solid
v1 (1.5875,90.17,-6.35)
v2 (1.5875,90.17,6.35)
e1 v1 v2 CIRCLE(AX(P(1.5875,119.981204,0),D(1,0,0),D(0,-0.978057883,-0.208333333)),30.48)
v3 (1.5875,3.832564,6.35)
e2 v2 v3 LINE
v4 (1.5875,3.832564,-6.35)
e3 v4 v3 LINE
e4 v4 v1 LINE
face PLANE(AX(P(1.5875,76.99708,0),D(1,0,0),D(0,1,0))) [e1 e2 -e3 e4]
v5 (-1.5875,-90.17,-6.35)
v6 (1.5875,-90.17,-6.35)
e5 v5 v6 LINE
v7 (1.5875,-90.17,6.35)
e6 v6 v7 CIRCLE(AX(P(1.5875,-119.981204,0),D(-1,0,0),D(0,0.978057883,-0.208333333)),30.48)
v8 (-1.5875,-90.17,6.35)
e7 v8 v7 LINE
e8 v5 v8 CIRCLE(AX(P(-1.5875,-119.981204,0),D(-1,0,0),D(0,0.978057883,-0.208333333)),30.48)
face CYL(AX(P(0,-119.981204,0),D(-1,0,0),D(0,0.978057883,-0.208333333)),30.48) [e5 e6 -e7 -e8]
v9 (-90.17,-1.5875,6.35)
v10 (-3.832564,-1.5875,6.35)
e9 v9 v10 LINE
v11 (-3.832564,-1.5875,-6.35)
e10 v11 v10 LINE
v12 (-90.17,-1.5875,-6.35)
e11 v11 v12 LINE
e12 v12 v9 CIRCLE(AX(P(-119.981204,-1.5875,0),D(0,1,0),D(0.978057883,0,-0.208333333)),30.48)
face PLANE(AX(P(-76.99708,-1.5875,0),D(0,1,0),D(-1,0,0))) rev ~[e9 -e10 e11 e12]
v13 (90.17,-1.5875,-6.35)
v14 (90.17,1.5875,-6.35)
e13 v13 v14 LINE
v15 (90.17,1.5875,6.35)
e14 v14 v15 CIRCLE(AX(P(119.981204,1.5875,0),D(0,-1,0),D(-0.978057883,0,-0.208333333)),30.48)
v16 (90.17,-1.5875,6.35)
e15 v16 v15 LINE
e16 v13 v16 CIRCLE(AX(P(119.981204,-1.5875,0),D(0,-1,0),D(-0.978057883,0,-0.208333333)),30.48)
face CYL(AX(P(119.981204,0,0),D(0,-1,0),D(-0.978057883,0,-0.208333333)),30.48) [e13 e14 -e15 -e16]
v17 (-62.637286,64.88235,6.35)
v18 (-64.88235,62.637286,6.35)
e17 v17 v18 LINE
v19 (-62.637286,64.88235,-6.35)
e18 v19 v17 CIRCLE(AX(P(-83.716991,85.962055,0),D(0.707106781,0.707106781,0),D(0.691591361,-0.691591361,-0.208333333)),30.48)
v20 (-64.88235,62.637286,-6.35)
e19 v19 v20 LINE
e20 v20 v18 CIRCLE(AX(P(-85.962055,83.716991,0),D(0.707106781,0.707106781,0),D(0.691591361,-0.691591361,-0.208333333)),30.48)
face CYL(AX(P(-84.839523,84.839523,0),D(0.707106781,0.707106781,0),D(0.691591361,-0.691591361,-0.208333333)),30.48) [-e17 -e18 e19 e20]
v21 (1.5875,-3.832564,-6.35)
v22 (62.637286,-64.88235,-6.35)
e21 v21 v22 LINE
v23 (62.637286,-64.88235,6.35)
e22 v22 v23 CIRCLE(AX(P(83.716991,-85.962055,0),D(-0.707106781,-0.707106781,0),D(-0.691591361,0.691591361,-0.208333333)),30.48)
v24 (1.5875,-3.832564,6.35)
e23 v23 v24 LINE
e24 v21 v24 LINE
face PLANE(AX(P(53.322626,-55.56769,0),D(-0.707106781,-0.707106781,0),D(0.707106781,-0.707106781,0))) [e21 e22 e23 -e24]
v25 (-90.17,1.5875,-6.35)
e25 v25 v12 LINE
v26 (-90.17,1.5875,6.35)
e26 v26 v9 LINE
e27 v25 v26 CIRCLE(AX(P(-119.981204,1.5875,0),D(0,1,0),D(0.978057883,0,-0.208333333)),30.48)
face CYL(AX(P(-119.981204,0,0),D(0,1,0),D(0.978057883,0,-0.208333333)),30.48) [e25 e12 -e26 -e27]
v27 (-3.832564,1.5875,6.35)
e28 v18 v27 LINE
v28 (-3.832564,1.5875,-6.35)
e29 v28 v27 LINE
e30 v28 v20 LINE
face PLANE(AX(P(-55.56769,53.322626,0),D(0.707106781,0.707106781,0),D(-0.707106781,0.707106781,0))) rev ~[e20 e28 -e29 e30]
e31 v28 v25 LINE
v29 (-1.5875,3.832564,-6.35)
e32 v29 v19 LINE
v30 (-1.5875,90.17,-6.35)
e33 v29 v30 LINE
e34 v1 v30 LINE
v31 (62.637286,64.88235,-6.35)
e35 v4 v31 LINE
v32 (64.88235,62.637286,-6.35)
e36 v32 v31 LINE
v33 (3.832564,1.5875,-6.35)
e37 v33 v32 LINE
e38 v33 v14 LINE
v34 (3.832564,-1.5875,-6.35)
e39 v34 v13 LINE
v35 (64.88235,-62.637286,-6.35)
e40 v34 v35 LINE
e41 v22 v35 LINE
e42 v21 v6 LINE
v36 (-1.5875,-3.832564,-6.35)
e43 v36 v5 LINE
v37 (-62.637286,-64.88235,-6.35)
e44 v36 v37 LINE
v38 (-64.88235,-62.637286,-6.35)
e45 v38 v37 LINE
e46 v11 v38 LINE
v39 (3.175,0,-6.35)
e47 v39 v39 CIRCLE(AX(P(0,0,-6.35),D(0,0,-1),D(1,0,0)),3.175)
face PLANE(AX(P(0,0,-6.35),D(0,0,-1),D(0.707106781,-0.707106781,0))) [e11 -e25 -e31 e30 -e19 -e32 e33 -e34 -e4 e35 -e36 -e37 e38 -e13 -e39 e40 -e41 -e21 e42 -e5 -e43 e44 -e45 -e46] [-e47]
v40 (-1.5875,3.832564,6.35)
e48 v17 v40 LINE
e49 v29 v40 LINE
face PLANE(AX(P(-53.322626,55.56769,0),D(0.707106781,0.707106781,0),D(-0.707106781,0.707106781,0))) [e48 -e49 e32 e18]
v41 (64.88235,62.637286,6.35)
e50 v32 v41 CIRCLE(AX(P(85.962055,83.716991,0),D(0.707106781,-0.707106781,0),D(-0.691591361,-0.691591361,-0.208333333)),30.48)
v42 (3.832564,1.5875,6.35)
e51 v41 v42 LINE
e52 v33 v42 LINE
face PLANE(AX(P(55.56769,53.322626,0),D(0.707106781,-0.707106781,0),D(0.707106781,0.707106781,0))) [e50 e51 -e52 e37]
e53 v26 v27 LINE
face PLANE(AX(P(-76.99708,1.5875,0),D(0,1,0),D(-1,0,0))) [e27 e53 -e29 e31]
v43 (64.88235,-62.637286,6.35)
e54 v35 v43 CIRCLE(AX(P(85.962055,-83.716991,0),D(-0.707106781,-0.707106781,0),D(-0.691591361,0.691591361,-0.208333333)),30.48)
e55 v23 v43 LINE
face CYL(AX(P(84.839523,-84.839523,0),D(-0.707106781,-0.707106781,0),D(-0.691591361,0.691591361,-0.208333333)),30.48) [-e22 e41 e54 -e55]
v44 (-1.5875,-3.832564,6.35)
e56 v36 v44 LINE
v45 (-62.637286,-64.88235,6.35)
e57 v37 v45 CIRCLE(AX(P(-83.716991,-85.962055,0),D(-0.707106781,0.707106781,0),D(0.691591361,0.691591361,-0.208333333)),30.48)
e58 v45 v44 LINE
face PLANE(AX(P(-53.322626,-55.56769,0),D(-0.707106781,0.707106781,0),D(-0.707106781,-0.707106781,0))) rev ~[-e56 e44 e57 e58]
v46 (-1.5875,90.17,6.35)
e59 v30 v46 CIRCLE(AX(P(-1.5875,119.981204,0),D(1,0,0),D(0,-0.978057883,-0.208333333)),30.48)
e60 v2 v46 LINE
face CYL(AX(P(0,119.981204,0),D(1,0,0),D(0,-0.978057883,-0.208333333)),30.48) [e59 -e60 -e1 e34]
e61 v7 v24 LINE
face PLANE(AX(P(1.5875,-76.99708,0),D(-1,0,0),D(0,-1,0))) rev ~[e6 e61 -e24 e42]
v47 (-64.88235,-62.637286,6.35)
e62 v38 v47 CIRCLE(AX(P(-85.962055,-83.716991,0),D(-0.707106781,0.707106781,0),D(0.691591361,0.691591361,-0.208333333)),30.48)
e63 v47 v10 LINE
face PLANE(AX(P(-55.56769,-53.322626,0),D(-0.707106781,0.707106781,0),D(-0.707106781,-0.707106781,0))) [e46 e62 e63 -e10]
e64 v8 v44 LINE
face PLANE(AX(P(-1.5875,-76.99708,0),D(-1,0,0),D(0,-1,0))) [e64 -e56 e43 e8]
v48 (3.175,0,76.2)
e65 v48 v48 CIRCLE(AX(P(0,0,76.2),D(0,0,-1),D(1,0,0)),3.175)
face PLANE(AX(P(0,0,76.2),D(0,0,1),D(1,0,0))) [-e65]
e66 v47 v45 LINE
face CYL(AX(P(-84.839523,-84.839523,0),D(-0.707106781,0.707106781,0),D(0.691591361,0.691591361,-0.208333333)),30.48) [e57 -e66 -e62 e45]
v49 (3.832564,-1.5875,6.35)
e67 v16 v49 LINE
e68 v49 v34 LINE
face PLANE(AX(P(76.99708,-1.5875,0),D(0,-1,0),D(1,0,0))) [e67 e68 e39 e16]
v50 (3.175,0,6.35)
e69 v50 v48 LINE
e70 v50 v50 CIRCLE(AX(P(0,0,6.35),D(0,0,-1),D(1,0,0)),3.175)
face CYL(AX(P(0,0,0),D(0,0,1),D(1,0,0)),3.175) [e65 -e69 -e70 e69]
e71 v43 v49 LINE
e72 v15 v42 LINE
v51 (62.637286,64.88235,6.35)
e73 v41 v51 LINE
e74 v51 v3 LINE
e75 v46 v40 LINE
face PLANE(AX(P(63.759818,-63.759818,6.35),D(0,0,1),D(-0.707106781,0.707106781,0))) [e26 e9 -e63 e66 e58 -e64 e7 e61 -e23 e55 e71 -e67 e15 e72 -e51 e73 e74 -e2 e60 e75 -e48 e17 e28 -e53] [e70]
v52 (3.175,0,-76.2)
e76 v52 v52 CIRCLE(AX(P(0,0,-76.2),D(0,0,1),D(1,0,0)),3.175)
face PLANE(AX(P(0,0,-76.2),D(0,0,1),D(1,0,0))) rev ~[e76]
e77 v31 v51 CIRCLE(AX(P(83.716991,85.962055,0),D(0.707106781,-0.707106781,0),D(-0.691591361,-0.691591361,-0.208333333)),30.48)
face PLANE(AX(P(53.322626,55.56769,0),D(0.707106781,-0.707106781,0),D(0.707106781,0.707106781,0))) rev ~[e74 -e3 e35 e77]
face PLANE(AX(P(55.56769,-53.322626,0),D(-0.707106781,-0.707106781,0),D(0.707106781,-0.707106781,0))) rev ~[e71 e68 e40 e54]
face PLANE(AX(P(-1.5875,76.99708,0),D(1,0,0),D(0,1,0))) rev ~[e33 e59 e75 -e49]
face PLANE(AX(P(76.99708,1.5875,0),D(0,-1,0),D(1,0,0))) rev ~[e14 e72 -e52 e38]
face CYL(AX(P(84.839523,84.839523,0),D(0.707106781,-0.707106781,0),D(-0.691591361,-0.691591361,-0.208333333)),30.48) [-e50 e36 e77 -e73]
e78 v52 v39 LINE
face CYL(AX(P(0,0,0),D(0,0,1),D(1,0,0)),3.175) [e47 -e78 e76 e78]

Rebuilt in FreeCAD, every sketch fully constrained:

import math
import FreeCAD as App
import Part
import Sketcher
Q = App.Units.Quantity

doc = App.newDocument("Part")
body = doc.addObject("PartDesign::Body", "Body")

# Sketch on XZ plane
sketch1 = body.newObject("Sketcher::SketchObject", "Sketch")
sketch1.AttachmentSupport = (doc.getObject("XZ_Plane"), [""])
sketch1.MapMode = "FlatFace"
sketch1.addGeometry([
    Part.LineSegment(App.Vector(90.17, 6.35, 0), App.Vector(0, 6.35, 0)),
    Part.LineSegment(App.Vector(0, 6.35, 0), App.Vector(0, -6.35, 0)),
    Part.LineSegment(App.Vector(0, -6.35, 0), App.Vector(90.17, -6.35, 0)),
    Part.ArcOfCircle(Part.Circle(App.Vector(119.981204, 0, 0), App.Vector(0, 0, 1), 30.48), math.radians(-167.975301), math.radians(167.975301)),
], False)
sketch1.addConstraint([
    Sketcher.Constraint("Coincident", 0, 2, 1, 1),
    Sketcher.Constraint("Coincident", 1, 2, 2, 1),
    Sketcher.Constraint("Coincident", 2, 2, 3, 1),
    Sketcher.Constraint("Coincident", 3, 2, 0, 1),
    Sketcher.Constraint("Horizontal", 0),
    Sketcher.Constraint("Vertical", 1),
    Sketcher.Constraint("Horizontal", 2),
    Sketcher.Constraint("Symmetric", 0, 2, 1, 2, -1, 1),
    Sketcher.Constraint("PointOnObject", 3, 3, -1),
    Sketcher.Constraint("Radius", 3, Q("1.2 in")),
    Sketcher.Constraint("DistanceY", 1, 2, 1, 1, Q("0.5 in")),
    Sketcher.Constraint("DistanceX", 0, 2, 0, 1, Q("3.55 in")),
])
pad1 = body.newObject("PartDesign::Pad", "Pad")
pad1.Profile = sketch1
pad1.Length = Q("0.125 in")
pad1.Midplane = True

# Sketch on XY plane
sketch2 = body.newObject("Sketcher::SketchObject", "Sketch001")
sketch2.AttachmentSupport = (doc.getObject("XY_Plane"), [""])
sketch2.MapMode = "FlatFace"
sketch2.addGeometry(Part.Circle(App.Vector(0, 0, 0), App.Vector(0, 0, 1), 3.175), False)
sketch2.addConstraint([
    Sketcher.Constraint("Coincident", 0, 3, -1, 1),
    Sketcher.Constraint("Diameter", 0, Q("0.25 in")),
])
pad2 = body.newObject("PartDesign::Pad", "Pad001")
pad2.Profile = sketch2
pad2.Length = Q("6 in")
pad2.Midplane = True
body2 = doc.addObject("PartDesign::Body", "Body001")
doc.recompute()

body2.BaseFeature = body
doc.recompute()

body3 = doc.addObject("PartDesign::Body", "Body002")
body3.BaseFeature = body
body3.Placement = App.Placement(App.Vector(0, 0, 0), App.Rotation(App.Vector(0, 0, 1), 45))
boolean = body2.newObject("PartDesign::Boolean", "Boolean")
boolean.Type = "Fuse"
boolean.addObjects([body3])
doc.recompute()

body4 = doc.addObject("PartDesign::Body", "Body003")
body4.BaseFeature = body
body4.Placement = App.Placement(App.Vector(0, 0, 0), App.Rotation(App.Vector(0, 0, 1), 90))
boolean2 = body2.newObject("PartDesign::Boolean", "Boolean001")
boolean2.Type = "Fuse"
boolean2.addObjects([body4])
doc.recompute()

body5 = doc.addObject("PartDesign::Body", "Body004")
body5.BaseFeature = body
body5.Placement = App.Placement(App.Vector(0, 0, 0), App.Rotation(App.Vector(0, 0, 1), 135))
boolean3 = body2.newObject("PartDesign::Boolean", "Boolean002")
boolean3.Type = "Fuse"
boolean3.addObjects([body5])
doc.recompute()

body6 = doc.addObject("PartDesign::Body", "Body005")
body6.BaseFeature = body
body6.Placement = App.Placement(App.Vector(0, 0, 0), App.Rotation(App.Vector(0, 0, 1), 180))
boolean4 = body2.newObject("PartDesign::Boolean", "Boolean003")
boolean4.Type = "Fuse"
boolean4.addObjects([body6])
doc.recompute()

body7 = doc.addObject("PartDesign::Body", "Body006")
body7.BaseFeature = body
body7.Placement = App.Placement(App.Vector(0, 0, 0), App.Rotation(App.Vector(0, 0, 1), 225))
boolean5 = body2.newObject("PartDesign::Boolean", "Boolean004")
boolean5.Type = "Fuse"
boolean5.addObjects([body7])
doc.recompute()

body8 = doc.addObject("PartDesign::Body", "Body007")
body8.BaseFeature = body
body8.Placement = App.Placement(App.Vector(0, 0, 0), App.Rotation(App.Vector(0, 0, 1), 270))
boolean6 = body2.newObject("PartDesign::Boolean", "Boolean005")
boolean6.Type = "Fuse"
boolean6.addObjects([body8])
doc.recompute()

body.Placement = App.Placement(App.Vector(0, 0, 0), App.Rotation(App.Vector(0, 0, 1), 315))
boolean7 = body2.newObject("PartDesign::Boolean", "Boolean006")
boolean7.Type = "Fuse"
boolean7.addObjects([body])

doc.recompute()
